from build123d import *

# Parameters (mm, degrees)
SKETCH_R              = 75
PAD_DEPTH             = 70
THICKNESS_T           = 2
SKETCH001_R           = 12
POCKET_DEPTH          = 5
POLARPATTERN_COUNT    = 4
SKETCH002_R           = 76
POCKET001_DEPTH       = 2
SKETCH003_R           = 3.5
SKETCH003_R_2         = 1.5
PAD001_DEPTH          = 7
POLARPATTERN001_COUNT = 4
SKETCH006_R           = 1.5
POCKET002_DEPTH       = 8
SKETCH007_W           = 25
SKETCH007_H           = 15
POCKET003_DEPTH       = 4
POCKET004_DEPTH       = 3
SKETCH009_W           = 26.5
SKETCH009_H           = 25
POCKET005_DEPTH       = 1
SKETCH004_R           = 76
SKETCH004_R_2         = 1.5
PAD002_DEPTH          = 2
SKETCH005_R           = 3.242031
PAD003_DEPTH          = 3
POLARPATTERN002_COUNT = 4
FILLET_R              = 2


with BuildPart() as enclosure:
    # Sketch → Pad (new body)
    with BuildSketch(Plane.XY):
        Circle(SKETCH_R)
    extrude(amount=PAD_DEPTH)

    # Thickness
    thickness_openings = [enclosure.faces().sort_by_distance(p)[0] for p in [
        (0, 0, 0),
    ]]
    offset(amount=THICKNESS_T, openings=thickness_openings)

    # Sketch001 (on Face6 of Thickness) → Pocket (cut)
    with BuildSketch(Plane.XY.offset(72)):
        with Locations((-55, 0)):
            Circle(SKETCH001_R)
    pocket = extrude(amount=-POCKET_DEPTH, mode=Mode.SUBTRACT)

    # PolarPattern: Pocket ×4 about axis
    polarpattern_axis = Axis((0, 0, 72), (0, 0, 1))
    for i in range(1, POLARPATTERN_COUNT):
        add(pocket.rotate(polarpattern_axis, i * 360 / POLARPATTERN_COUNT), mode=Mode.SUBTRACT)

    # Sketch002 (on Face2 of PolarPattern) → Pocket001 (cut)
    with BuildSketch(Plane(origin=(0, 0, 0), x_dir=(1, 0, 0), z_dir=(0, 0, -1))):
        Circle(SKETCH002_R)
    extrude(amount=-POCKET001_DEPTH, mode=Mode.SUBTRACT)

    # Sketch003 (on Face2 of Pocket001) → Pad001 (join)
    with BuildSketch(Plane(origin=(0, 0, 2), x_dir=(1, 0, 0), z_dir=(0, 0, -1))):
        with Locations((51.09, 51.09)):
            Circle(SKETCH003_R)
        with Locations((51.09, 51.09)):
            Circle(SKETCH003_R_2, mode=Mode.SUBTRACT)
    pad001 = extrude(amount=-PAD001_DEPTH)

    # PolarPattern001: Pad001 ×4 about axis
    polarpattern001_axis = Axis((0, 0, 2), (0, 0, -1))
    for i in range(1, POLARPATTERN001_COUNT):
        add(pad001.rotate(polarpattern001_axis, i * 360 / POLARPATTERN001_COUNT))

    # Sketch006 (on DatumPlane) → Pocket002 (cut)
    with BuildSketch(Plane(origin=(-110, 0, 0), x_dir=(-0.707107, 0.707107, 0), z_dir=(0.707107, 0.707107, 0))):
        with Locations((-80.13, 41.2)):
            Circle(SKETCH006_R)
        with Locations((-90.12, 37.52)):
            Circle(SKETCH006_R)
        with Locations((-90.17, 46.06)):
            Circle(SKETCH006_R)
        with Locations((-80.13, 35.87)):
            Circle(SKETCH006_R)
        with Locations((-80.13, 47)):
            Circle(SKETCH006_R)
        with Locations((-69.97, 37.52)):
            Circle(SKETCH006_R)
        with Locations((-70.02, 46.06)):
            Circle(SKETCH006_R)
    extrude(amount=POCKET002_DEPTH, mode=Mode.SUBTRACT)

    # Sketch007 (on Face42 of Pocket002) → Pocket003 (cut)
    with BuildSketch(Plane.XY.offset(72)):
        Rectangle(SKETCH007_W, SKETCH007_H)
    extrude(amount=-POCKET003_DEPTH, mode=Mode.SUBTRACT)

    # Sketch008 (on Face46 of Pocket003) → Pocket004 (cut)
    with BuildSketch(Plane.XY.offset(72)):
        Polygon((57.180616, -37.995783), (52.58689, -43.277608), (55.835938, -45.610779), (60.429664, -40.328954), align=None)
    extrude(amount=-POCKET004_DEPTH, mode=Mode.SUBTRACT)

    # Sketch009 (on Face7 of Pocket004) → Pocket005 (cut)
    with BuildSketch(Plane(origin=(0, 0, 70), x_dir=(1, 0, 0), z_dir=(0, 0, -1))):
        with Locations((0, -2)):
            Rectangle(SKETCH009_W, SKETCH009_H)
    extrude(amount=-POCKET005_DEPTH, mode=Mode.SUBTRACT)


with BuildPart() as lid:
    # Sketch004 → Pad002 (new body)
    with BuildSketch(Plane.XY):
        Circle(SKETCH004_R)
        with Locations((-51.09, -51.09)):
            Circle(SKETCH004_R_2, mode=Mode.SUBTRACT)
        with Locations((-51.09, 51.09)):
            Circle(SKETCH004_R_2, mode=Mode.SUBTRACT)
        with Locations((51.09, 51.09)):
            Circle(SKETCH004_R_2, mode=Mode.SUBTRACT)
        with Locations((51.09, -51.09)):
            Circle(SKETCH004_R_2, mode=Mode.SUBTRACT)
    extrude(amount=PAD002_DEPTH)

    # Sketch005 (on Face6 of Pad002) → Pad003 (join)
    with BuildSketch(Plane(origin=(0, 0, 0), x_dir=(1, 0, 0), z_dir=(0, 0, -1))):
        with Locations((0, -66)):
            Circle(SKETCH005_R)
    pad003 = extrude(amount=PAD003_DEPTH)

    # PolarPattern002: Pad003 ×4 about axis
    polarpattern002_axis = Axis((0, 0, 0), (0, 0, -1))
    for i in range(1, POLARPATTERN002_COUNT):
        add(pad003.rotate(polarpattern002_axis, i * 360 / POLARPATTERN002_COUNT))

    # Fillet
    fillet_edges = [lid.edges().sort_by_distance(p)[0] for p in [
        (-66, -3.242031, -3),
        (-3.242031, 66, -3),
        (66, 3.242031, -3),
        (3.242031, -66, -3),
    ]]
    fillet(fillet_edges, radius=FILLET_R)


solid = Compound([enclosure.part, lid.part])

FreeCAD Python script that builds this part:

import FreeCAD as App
import Part
import Sketcher
from FreeCAD import Vector


def edges_at(feature, points):
    """Names of the edges that pass closest to the given points."""
    edges = feature.Shape.Edges
    near = lambda p: min(range(len(edges)), key=lambda i: edges[i].distToShape(Part.Vertex(*p))[0])
    return sorted({f"Edge{near(p) + 1}" for p in points})


def faces_at(feature, points):
    """Names of the faces that lie closest to the given points."""
    faces = feature.Shape.Faces
    near = lambda p: min(range(len(faces)), key=lambda i: faces[i].distToShape(Part.Vertex(*p))[0])
    return sorted({f"Face{near(p) + 1}" for p in points})


def add_polygon(sketch, points):
    """Adds a closed chain of lines whose ends are joined by coincident constraints."""
    first, n = sketch.GeometryCount, len(points)
    for a, b in zip(points, points[1:] + points[:1]):
        sketch.addGeometry(Part.LineSegment(App.Vector(*a, 0), App.Vector(*b, 0)), False)
    for i in range(n):
        sketch.addConstraint(Sketcher.Constraint("Coincident", first + i, 2, first + (i + 1) % n, 1))

doc = App.newDocument("Part")
body = doc.addObject("PartDesign::Body", "Body")

# Sketch on XY plane
sketch1 = doc.addObject("Sketcher::SketchObject", "Sketch")
body.addObject(sketch1)
sketch1.AttachmentSupport = (doc.XY_Plane, [""])
sketch1.MapMode = "FlatFace"
sketch1.addGeometry(Part.Circle(Vector(0, 0, 0), Vector(0, 0, 1), 75), False)
sketch1.addConstraint([
    Sketcher.Constraint("Coincident", 0, 3, -1, 1),
    Sketcher.Constraint("Diameter", 0, 150.0),
])
pad1 = doc.addObject("PartDesign::Pad", "Pad")
body.addObject(pad1)
pad1.Profile = sketch1
pad1.Length = 70
doc.recompute()

thickness = doc.addObject("PartDesign::Thickness", "Thickness")
body.addObject(thickness)
thickness.Base = (pad1, faces_at(pad1, [(0, 0, 0)]))
thickness.Value = 2
thickness.Reversed = False
thickness.Join = "Arc"

# Sketch on XY plane
sketch2 = doc.addObject("Sketcher::SketchObject", "Sketch001")
body.addObject(sketch2)
sketch2.AttachmentSupport = (doc.XY_Plane, [""])
sketch2.MapMode = "FlatFace"
sketch2.AttachmentOffset = App.Placement(Vector(0, 0, 72), App.Rotation())
sketch2.addGeometry(Part.Circle(Vector(-55, 0, 0), Vector(0, 0, 1), 12), False)
sketch2.addConstraint([
    Sketcher.Constraint("PointOnObject", 0, 3, -1),
    Sketcher.Constraint("Diameter", 0, 24.0),
    Sketcher.Constraint("DistanceX", 0, 3, -1, 1, 55.0),
])
pocket1 = doc.addObject("PartDesign::Pocket", "Pocket")
body.addObject(pocket1)
pocket1.Profile = sketch2
pocket1.Length = 5
doc.recompute()

polarpattern = doc.addObject("PartDesign::PolarPattern", "PolarPattern")
body.addObject(polarpattern)
polarpattern.Originals = [pocket1]
polarpattern.Axis = (doc.Z_Axis, [""])
polarpattern.Angle = 360
polarpattern.Occurrences = 4
body.Tip = polarpattern

# Sketch on XY plane
sketch3 = doc.addObject("Sketcher::SketchObject", "Sketch002")
body.addObject(sketch3)
sketch3.AttachmentSupport = (doc.XY_Plane, [""])
sketch3.MapMode = "FlatFace"
sketch3.addGeometry(Part.Circle(Vector(0, 0, 0), Vector(0, 0, 1), 76), False)
sketch3.addConstraint([
    Sketcher.Constraint("Coincident", 0, 3, -1, 1),
    Sketcher.Constraint("Diameter", 0, 152.0),
])
pocket2 = doc.addObject("PartDesign::Pocket", "Pocket001")
body.addObject(pocket2)
pocket2.Profile = sketch3
pocket2.Length = 2
pocket2.Reversed = True

# Sketch on XY plane
sketch4 = doc.addObject("Sketcher::SketchObject", "Sketch003")
body.addObject(sketch4)
sketch4.AttachmentSupport = (doc.XY_Plane, [""])
sketch4.MapMode = "FlatFace"
sketch4.AttachmentOffset = App.Placement(Vector(0, 0, 2), App.Rotation())
sketch4.addGeometry([
    Part.Circle(Vector(51.09, -51.09, 0), Vector(0, 0, 1), 3.5),
    Part.Circle(Vector(51.09, -51.09, 0), Vector(0, 0, 1), 1.5),
], False)
sketch4.addConstraint([
    Sketcher.Constraint("Coincident", 1, 3, 0, 3),
    Sketcher.Constraint("Diameter", 0, 7.0),
    Sketcher.Constraint("Diameter", 1, 3.0),
    Sketcher.Constraint("DistanceX", -1, 1, 0, 3, 51.09),
    Sketcher.Constraint("DistanceY", 0, 3, -1, 1, 51.09),
])
pad2 = doc.addObject("PartDesign::Pad", "Pad001")
body.addObject(pad2)
pad2.Profile = sketch4
pad2.Length = 7
doc.recompute()

polarpattern2 = doc.addObject("PartDesign::PolarPattern", "PolarPattern001")
body.addObject(polarpattern2)
polarpattern2.Originals = [pad2]
polarpattern2.Axis = (doc.Z_Axis, [""])
polarpattern2.Angle = 360
polarpattern2.Occurrences = 4
body.Tip = polarpattern2

# Sketch on an angled plane
sketch5 = doc.addObject("Sketcher::SketchObject", "Sketch004")
body.addObject(sketch5)
sketch5.Placement = App.Placement(Vector(-110, 0, 0), App.Rotation(Vector(-0.707106781, 0.707106781, 0), Vector(0, 0, 0.999999999), Vector(0.707106781, 0.707106781, 0), "ZXY"))
sketch5.addGeometry([
    Part.Circle(Vector(-80.13, 41.2, 0), Vector(0, 0, 1), 1.5),  # 0
    Part.Circle(Vector(-90.12, 37.52, 0), Vector(0, 0, 1), 1.5),  # 1
    Part.Circle(Vector(-90.17, 46.06, 0), Vector(0, 0, 1), 1.5),  # 2
    Part.Circle(Vector(-80.13, 35.87, 0), Vector(0, 0, 1), 1.5),  # 3
    Part.Circle(Vector(-80.13, 47, 0), Vector(0, 0, 1), 1.5),  # 4
    Part.Circle(Vector(-69.97, 37.52, 0), Vector(0, 0, 1), 1.5),  # 5
    Part.Circle(Vector(-70.02, 46.06, 0), Vector(0, 0, 1), 1.5),  # 6
], False)
sketch5.addConstraint([
    Sketcher.Constraint("Equal", 0, 1),
    Sketcher.Constraint("Equal", 1, 2),
    Sketcher.Constraint("Equal", 2, 3),
    Sketcher.Constraint("Equal", 3, 4),
    Sketcher.Constraint("Equal", 4, 5),
    Sketcher.Constraint("Equal", 5, 6),
    Sketcher.Constraint("Horizontal", 1, 3, 5, 3),
    Sketcher.Constraint("Horizontal", 2, 3, 6, 3),
    Sketcher.Constraint("Vertical", 0, 3, 3, 3),
    Sketcher.Constraint("Vertical", 3, 3, 4, 3),
    Sketcher.Constraint("Diameter", 0, 3.0),
    Sketcher.Constraint("DistanceY", -1, 1, 4, 3, 47.0),
    Sketcher.Constraint("DistanceY", -1, 1, 0, 3, 41.2),
    Sketcher.Constraint("DistanceX", 2, 3, 5, 3, 20.2),
    Sketcher.Constraint("DistanceX", 0, 3, -1, 1, 80.13),
    Sketcher.Constraint("DistanceX", 1, 3, -1, 1, 90.12),
    Sketcher.Constraint("DistanceY", -1, 1, 1, 3, 37.52),
    Sketcher.Constraint("DistanceX", 2, 3, -1, 1, 90.17),
    Sketcher.Constraint("DistanceY", -1, 1, 2, 3, 46.06),
    Sketcher.Constraint("DistanceY", -1, 1, 3, 3, 35.87),
    Sketcher.Constraint("DistanceX", 6, 3, -1, 1, 70.02),
])
pocket3 = doc.addObject("PartDesign::Pocket", "Pocket002")
body.addObject(pocket3)
pocket3.Profile = sketch5
pocket3.Length = 8
pocket3.Reversed = True

# Sketch on XY plane
sketch6 = doc.addObject("Sketcher::SketchObject", "Sketch005")
body.addObject(sketch6)
sketch6.AttachmentSupport = (doc.XY_Plane, [""])
sketch6.MapMode = "FlatFace"
sketch6.AttachmentOffset = App.Placement(Vector(0, 0, 72), App.Rotation())
add_polygon(sketch6, [(-12.5, 7.5), (-12.5, -7.5), (12.5, -7.5), (12.5, 7.5)])  # lines 0-3
sketch6.addConstraint([
    Sketcher.Constraint("Vertical", 0),
    Sketcher.Constraint("Horizontal", 1),
    Sketcher.Constraint("Vertical", 2),
    Sketcher.Constraint("Horizontal", 3),
    Sketcher.Constraint("Symmetric", 0, 2, 2, 2, -1, 1),
    Sketcher.Constraint("DistanceX", 1, 1, 1, 2, 25.0),
    Sketcher.Constraint("DistanceY", 0, 2, 0, 1, 15.0),
])
pocket4 = doc.addObject("PartDesign::Pocket", "Pocket003")
body.addObject(pocket4)
pocket4.Profile = sketch6
pocket4.Length = 4

# Sketch on XY plane
sketch7 = doc.addObject("Sketcher::SketchObject", "Sketch006")
body.addObject(sketch7)
sketch7.AttachmentSupport = (doc.XY_Plane, [""])
sketch7.MapMode = "FlatFace"
sketch7.AttachmentOffset = App.Placement(Vector(0, 0, 72), App.Rotation())
add_polygon(sketch7, [(57.180616, -37.995783), (52.58689, -43.277608), (55.835938, -45.610779), (60.429664, -40.328954)])  # lines 0-3
sketch7.addConstraint([
    Sketcher.Constraint("Parallel", 0, 2),
    Sketcher.Constraint("Parallel", 1, 3),
    Sketcher.Constraint("Distance", 0, 7.0),
    Sketcher.Constraint("Distance", 1, 4.0),
    Sketcher.Constraint("DistanceX", -1, 1, 0, 2, 52.58689),
    Sketcher.Constraint("DistanceY", 1, 2, -1, 1, 45.610779),
    Sketcher.Constraint("DistanceX", 0, 2, 1, 2, 3.249048),
    Sketcher.Constraint("DistanceX", 1, 2, 3, 2, 1.344678),
])
pocket5 = doc.addObject("PartDesign::Pocket", "Pocket004")
body.addObject(pocket5)
pocket5.Profile = sketch7
pocket5.Length = 3

# Sketch on XY plane
sketch8 = doc.addObject("Sketcher::SketchObject", "Sketch007")
body.addObject(sketch8)
sketch8.AttachmentSupport = (doc.XY_Plane, [""])
sketch8.MapMode = "FlatFace"
sketch8.AttachmentOffset = App.Placement(Vector(0, 0, 70), App.Rotation())
add_polygon(sketch8, [(-13.25, -10.5), (-13.25, 14.5), (13.25, 14.5), (13.25, -10.5)])  # lines 0-3
sketch8.addConstraint([
    Sketcher.Constraint("Vertical", 0),
    Sketcher.Constraint("Horizontal", 1),
    Sketcher.Constraint("Vertical", 2),
    Sketcher.Constraint("Horizontal", 3),
    Sketcher.Constraint("DistanceY", 0, 1, 0, 2, 25.0),
    Sketcher.Constraint("DistanceX", 1, 1, 1, 2, 26.5),
    Sketcher.Constraint("DistanceY", -1, 1, 0, 2, 14.5),
    Sketcher.Constraint("DistanceX", 0, 2, -1, 1, 13.25),
])
pocket6 = doc.addObject("PartDesign::Pocket", "Pocket005")
body.addObject(pocket6)
pocket6.Profile = sketch8
pocket6.Length = 1
pocket6.Reversed = True
body2 = doc.addObject("PartDesign::Body", "Body001")

# Sketch on XY plane
sketch9 = doc.addObject("Sketcher::SketchObject", "Sketch008")
body2.addObject(sketch9)
sketch9.AttachmentSupport = (doc.getObject("XY_Plane001"), [""])
sketch9.MapMode = "FlatFace"
sketch9.addGeometry([
    Part.Circle(Vector(0, 0, 0), Vector(0, 0, 1), 76),  # 0
    Part.Circle(Vector(-51.09, -51.09, 0), Vector(0, 0, 1), 1.5),  # 1
    Part.Circle(Vector(51.09, -51.09, 0), Vector(0, 0, 1), 1.5),  # 2
    Part.Circle(Vector(-51.09, 51.09, 0), Vector(0, 0, 1), 1.5),  # 3
    Part.Circle(Vector(51.09, 51.09, 0), Vector(0, 0, 1), 1.5),  # 4
], False)
sketch9.addConstraint([
    Sketcher.Constraint("Coincident", 0, 3, -1, 1),
    Sketcher.Constraint("Equal", 1, 2),
    Sketcher.Constraint("Equal", 2, 3),
    Sketcher.Constraint("Equal", 3, 4),
    Sketcher.Constraint("Symmetric", 2, 3, 3, 3, -1, 1),
    Sketcher.Constraint("Symmetric", 1, 3, 4, 3, -1, 1),
    Sketcher.Constraint("Symmetric", 1, 3, 2, 3, -2),
    Sketcher.Constraint("Diameter", 0, 152.0),
    Sketcher.Constraint("Diameter", 1, 3.0),
    Sketcher.Constraint("DistanceX", 1, 3, -1, 1, 51.09),
    Sketcher.Constraint("DistanceY", 1, 3, -1, 1, 51.09),
])
pad3 = doc.addObject("PartDesign::Pad", "Pad002")
body2.addObject(pad3)
pad3.Profile = sketch9
pad3.Length = 2

# Sketch on XY plane
sketch10 = doc.addObject("Sketcher::SketchObject", "Sketch009")
body2.addObject(sketch10)
sketch10.AttachmentSupport = (doc.getObject("XY_Plane001"), [""])
sketch10.MapMode = "FlatFace"
sketch10.addGeometry(Part.Circle(Vector(0, 66, 0), Vector(0, 0, 1), 3.242031), False)
sketch10.addConstraint([
    Sketcher.Constraint("PointOnObject", 0, 3, -2),
    Sketcher.Constraint("DistanceY", -1, 1, 0, 3, 66.0),
    Sketcher.Constraint("Diameter", 0, 6.484062),
])
pad4 = doc.addObject("PartDesign::Pad", "Pad003")
body2.addObject(pad4)
pad4.Profile = sketch10
pad4.Length = 3
pad4.Reversed = True
doc.recompute()

polarpattern3 = doc.addObject("PartDesign::PolarPattern", "PolarPattern002")
body2.addObject(polarpattern3)
polarpattern3.Originals = [pad4]
polarpattern3.Axis = (doc.getObject("Z_Axis001"), [""])
polarpattern3.Angle = 360
polarpattern3.Occurrences = 4
body2.Tip = polarpattern3
doc.recompute()

fillet = doc.addObject("PartDesign::Fillet", "Fillet")
body2.addObject(fillet)
fillet.Base = (polarpattern3, edges_at(polarpattern3, [
    (-66, -3.242, -3),
    (-3.242, 66, -3),
    (66, 3.242, -3),
    (3.242, -66, -3),
]))
fillet.Radius = 2

doc.recompute()
